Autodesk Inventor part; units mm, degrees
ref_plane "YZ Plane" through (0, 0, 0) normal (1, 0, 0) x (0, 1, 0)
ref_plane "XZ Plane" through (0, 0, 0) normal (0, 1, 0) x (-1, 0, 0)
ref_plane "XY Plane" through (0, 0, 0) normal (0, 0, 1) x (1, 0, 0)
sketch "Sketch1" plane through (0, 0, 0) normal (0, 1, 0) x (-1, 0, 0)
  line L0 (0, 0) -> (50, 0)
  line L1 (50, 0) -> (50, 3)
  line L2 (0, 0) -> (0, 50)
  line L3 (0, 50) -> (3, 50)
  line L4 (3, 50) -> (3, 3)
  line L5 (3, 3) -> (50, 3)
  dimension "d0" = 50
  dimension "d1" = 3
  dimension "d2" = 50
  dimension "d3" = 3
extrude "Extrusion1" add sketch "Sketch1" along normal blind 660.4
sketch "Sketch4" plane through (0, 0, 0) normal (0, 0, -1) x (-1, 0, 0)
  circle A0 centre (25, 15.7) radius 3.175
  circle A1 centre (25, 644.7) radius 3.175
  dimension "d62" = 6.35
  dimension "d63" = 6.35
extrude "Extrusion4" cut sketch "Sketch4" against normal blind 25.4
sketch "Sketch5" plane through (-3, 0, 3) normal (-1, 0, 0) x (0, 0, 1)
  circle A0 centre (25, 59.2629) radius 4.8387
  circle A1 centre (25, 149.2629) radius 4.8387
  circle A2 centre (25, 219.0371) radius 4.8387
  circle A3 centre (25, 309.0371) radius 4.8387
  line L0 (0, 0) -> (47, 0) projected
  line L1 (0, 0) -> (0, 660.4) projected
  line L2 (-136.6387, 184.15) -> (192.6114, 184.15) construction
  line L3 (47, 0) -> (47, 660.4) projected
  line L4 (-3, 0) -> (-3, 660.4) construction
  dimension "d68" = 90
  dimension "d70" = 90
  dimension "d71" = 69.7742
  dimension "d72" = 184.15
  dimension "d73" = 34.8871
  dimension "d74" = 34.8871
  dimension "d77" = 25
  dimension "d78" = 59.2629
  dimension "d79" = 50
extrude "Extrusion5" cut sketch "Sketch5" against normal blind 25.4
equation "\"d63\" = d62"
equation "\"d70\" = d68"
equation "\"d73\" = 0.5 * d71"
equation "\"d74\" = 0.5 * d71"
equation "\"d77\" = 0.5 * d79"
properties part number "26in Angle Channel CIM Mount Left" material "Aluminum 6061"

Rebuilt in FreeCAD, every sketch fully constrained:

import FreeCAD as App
import Part
import Sketcher
Q = App.Units.Quantity


def add_polygon(sketch, points):
    """Adds a closed chain of lines whose ends are joined by coincident constraints."""
    first, n = sketch.GeometryCount, len(points)
    for a, b in zip(points, points[1:] + points[:1]):
        sketch.addGeometry(Part.LineSegment(App.Vector(*a, 0), App.Vector(*b, 0)), False)
    for i in range(n):
        sketch.addConstraint(Sketcher.Constraint("Coincident", first + i, 2, first + (i + 1) % n, 1))

doc = App.newDocument("Part")
body = doc.addObject("PartDesign::Body", "Body")

# Sketch on XZ plane
sketch1 = doc.addObject("Sketcher::SketchObject", "Sketch")
body.addObject(sketch1)
sketch1.AttachmentSupport = (doc.XZ_Plane, [""])
sketch1.MapMode = "FlatFace"
add_polygon(sketch1, [(0, 50), (0, 0), (-50, 0), (-50, 3), (-3, 3), (-3, 50)])  # lines 0-5
sketch1.addConstraint(Sketcher.Constraint("Vertical", 0))
sketch1.addConstraint(Sketcher.Constraint("Horizontal", 1))
sketch1.addConstraint(Sketcher.Constraint("Vertical", 2))
sketch1.addConstraint(Sketcher.Constraint("Horizontal", 3))
sketch1.addConstraint(Sketcher.Constraint("Vertical", 4))
sketch1.addConstraint(Sketcher.Constraint("Horizontal", 5))
sketch1.addConstraint(Sketcher.Constraint("Coincident", 0, 2, -1, 1))
sketch1.addConstraint(Sketcher.Constraint("Equal", 1, 0))
sketch1.addConstraint(Sketcher.Constraint("Equal", 5, 2))
sketch1.addConstraint(Sketcher.Constraint("DistanceX", 1, 2, 1, 1, Q("1.9685 in")))
sketch1.addConstraint(Sketcher.Constraint("DistanceX", 5, 1, 5, 2, Q("0.1181 in")))
pad1 = doc.addObject("PartDesign::Pad", "Pad")
body.addObject(pad1)
pad1.Profile = sketch1
pad1.Length = Q("26 in")
pad1.Reversed = True

# Sketch on XY plane
sketch2 = doc.addObject("Sketcher::SketchObject", "Sketch001")
body.addObject(sketch2)
sketch2.AttachmentSupport = (doc.XY_Plane, [""])
sketch2.MapMode = "FlatFace"
sketch2.addGeometry(Part.Circle(App.Vector(-25, 15.7, 0), App.Vector(0, 0, 1), 3.2), False)
sketch2.addGeometry(Part.Circle(App.Vector(-25, 644.7, 0), App.Vector(0, 0, 1), 3.2), False)
sketch2.addConstraint(Sketcher.Constraint("Equal", 0, 1))
sketch2.addConstraint(Sketcher.Constraint("Vertical", 0, 3, 1, 3))
sketch2.addConstraint(Sketcher.Constraint("Diameter", 0, Q("0.25 in")))
sketch2.addConstraint(Sketcher.Constraint("DistanceY", -1, 1, 0, 3, Q("0.6181 in")))
sketch2.addConstraint(Sketcher.Constraint("DistanceY", -1, 1, 1, 3, Q("25.3819 in")))
sketch2.addConstraint(Sketcher.Constraint("DistanceX", 0, 3, -1, 1, Q("25 mm")))
pocket1 = doc.addObject("PartDesign::Pocket", "Pocket")
body.addObject(pocket1)
pocket1.Profile = sketch2
pocket1.Length = Q("1 in")
pocket1.Reversed = True

# Sketch on YZ plane
sketch3 = doc.addObject("Sketcher::SketchObject", "Sketch002")
body.addObject(sketch3)
sketch3.AttachmentSupport = (doc.YZ_Plane, [""])
sketch3.MapMode = "FlatFace"
sketch3.AttachmentOffset = App.Placement(App.Vector(0, 0, -0.1181102 * 25.4), App.Rotation())
sketch3.addGeometry(Part.Circle(App.Vector(59.3, 28, 0), App.Vector(0, 0, 1), 4.8), False)
sketch3.addGeometry(Part.Circle(App.Vector(149.3, 28, 0), App.Vector(0, 0, 1), 4.8), False)
sketch3.addGeometry(Part.Circle(App.Vector(219, 28, 0), App.Vector(0, 0, 1), 4.8), False)
sketch3.addGeometry(Part.Circle(App.Vector(309, 28, 0), App.Vector(0, 0, 1), 4.8), False)
sketch3.addConstraint(Sketcher.Constraint("Equal", 0, 1))
sketch3.addConstraint(Sketcher.Constraint("Equal", 1, 2))
sketch3.addConstraint(Sketcher.Constraint("Equal", 2, 3))
sketch3.addConstraint(Sketcher.Constraint("Horizontal", 0, 3, 1, 3))
sketch3.addConstraint(Sketcher.Constraint("Horizontal", 1, 3, 2, 3))
sketch3.addConstraint(Sketcher.Constraint("Horizontal", 2, 3, 3, 3))
sketch3.addConstraint(Sketcher.Constraint("Diameter", 0, Q("0.381 in")))
sketch3.addConstraint(Sketcher.Constraint("DistanceX", 0, 3, 1, 3, Q("3.5433 in")))
sketch3.addConstraint(Sketcher.Constraint("DistanceX", 2, 3, 3, 3, Q("3.5433 in")))
sketch3.addConstraint(Sketcher.Constraint("DistanceX", -1, 1, 0, 3, Q("2.333189 in")))
sketch3.addConstraint(Sketcher.Constraint("DistanceX", 1, 3, 2, 3, Q("69.7742 mm")))
sketch3.addConstraint(Sketcher.Constraint("DistanceY", -1, 1, 0, 3, Q("28 mm")))
pocket2 = doc.addObject("PartDesign::Pocket", "Pocket001")
body.addObject(pocket2)
pocket2.Profile = sketch3
pocket2.Length = Q("1 in")
pocket2.Reversed = True

doc.recompute()
